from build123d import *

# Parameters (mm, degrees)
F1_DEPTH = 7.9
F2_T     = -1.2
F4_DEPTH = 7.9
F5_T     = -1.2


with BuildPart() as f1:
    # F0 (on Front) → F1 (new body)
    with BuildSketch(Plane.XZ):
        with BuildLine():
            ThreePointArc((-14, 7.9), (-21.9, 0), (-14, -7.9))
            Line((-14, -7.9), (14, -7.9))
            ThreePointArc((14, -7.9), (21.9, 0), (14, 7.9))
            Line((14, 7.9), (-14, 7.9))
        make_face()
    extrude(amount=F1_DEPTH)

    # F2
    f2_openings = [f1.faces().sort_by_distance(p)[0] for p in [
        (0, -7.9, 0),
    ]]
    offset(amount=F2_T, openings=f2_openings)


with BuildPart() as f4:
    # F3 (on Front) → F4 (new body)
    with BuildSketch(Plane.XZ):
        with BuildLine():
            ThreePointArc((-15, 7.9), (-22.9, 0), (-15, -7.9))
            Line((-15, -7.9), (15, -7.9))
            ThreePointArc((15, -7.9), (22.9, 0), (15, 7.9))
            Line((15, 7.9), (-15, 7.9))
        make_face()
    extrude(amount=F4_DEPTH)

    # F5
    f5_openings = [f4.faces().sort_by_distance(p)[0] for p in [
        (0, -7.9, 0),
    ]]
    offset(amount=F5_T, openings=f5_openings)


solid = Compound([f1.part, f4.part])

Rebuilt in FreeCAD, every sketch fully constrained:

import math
import FreeCAD as App
import Part
import Sketcher

V = App.Vector


def faces_at(feature, points):
    """Names of the faces that lie closest to the given points."""
    faces = feature.Shape.Faces
    near = lambda p: min(range(len(faces)), key=lambda i: faces[i].distToShape(Part.Vertex(*p))[0])
    return sorted({f"Face{near(p) + 1}" for p in points})

doc = App.newDocument("Part")
body = doc.addObject("PartDesign::Body", "Body")

sketch1 = body.newObject("Sketcher::SketchObject", "Sketch")
sketch1.AttachmentSupport = (doc.getObject("XZ_Plane"), [""])
sketch1.MapMode = "FlatFace"
sketch1.addGeometry([
    Part.ArcOfCircle(Part.Circle(V(-14, 0, 0), V(0, 0, 1), 8), math.radians(90), math.radians(270)),
    Part.LineSegment(V(-14, -8, 0), V(14, -8, 0)),
    Part.ArcOfCircle(Part.Circle(V(14, 0, 0), V(0, 0, 1), 8), math.radians(-90), math.radians(90)),
    Part.LineSegment(V(14, 8, 0), V(-14, 8, 0)),
], False)
sketch1.addConstraint([
    Sketcher.Constraint("Tangent", 0, 2, 1, 1),
    Sketcher.Constraint("Tangent", 1, 2, 2, 1),
    Sketcher.Constraint("Tangent", 2, 2, 3, 1),
    Sketcher.Constraint("Tangent", 3, 2, 0, 1),
    Sketcher.Constraint("Horizontal", 1),
    Sketcher.Constraint("Horizontal", 3),
    Sketcher.Constraint("Symmetric", 0, 3, 2, 3, -1, 1),
    Sketcher.Constraint("Radius", 0, 7.9),
    Sketcher.Constraint("DistanceX", 1, 1, 1, 2, 28.0),
])
pad1 = body.newObject("PartDesign::Pad", "Pad")
pad1.Profile = sketch1
pad1.Length = 7.9
doc.recompute()

thickness = body.newObject("PartDesign::Thickness", "Thickness")
thickness.Base = (pad1, faces_at(pad1, [(0, -7.9, 0)]))
thickness.Value = 1.2
thickness.Reversed = True
thickness.Join = "Arc"
body2 = doc.addObject("PartDesign::Body", "Body001")

sketch2 = body2.newObject("Sketcher::SketchObject", "Sketch001")
sketch2.AttachmentSupport = (doc.getObject("XZ_Plane001"), [""])
sketch2.MapMode = "FlatFace"
sketch2.addGeometry([
    Part.ArcOfCircle(Part.Circle(V(-15, 0, 0), V(0, 0, 1), 8), math.radians(90), math.radians(270)),
    Part.LineSegment(V(-15, -8, 0), V(15, -8, 0)),
    Part.ArcOfCircle(Part.Circle(V(15, 0, 0), V(0, 0, 1), 8), math.radians(-90), math.radians(90)),
    Part.LineSegment(V(15, 8, 0), V(-15, 8, 0)),
], False)
sketch2.addConstraint([
    Sketcher.Constraint("Tangent", 0, 2, 1, 1),
    Sketcher.Constraint("Tangent", 1, 2, 2, 1),
    Sketcher.Constraint("Tangent", 2, 2, 3, 1),
    Sketcher.Constraint("Tangent", 3, 2, 0, 1),
    Sketcher.Constraint("Horizontal", 1),
    Sketcher.Constraint("Horizontal", 3),
    Sketcher.Constraint("Symmetric", 0, 3, 2, 3, -1, 1),
    Sketcher.Constraint("Radius", 0, 7.9),
    Sketcher.Constraint("DistanceX", 1, 1, 1, 2, 30.0),
])
pad2 = body2.newObject("PartDesign::Pad", "Pad001")
pad2.Profile = sketch2
pad2.Length = 7.9
doc.recompute()

thickness2 = body2.newObject("PartDesign::Thickness", "Thickness001")
thickness2.Base = (pad2, faces_at(pad2, [(0, -7.9, 0)]))
thickness2.Value = 1.2
thickness2.Reversed = True
thickness2.Join = "Arc"

doc.recompute()
